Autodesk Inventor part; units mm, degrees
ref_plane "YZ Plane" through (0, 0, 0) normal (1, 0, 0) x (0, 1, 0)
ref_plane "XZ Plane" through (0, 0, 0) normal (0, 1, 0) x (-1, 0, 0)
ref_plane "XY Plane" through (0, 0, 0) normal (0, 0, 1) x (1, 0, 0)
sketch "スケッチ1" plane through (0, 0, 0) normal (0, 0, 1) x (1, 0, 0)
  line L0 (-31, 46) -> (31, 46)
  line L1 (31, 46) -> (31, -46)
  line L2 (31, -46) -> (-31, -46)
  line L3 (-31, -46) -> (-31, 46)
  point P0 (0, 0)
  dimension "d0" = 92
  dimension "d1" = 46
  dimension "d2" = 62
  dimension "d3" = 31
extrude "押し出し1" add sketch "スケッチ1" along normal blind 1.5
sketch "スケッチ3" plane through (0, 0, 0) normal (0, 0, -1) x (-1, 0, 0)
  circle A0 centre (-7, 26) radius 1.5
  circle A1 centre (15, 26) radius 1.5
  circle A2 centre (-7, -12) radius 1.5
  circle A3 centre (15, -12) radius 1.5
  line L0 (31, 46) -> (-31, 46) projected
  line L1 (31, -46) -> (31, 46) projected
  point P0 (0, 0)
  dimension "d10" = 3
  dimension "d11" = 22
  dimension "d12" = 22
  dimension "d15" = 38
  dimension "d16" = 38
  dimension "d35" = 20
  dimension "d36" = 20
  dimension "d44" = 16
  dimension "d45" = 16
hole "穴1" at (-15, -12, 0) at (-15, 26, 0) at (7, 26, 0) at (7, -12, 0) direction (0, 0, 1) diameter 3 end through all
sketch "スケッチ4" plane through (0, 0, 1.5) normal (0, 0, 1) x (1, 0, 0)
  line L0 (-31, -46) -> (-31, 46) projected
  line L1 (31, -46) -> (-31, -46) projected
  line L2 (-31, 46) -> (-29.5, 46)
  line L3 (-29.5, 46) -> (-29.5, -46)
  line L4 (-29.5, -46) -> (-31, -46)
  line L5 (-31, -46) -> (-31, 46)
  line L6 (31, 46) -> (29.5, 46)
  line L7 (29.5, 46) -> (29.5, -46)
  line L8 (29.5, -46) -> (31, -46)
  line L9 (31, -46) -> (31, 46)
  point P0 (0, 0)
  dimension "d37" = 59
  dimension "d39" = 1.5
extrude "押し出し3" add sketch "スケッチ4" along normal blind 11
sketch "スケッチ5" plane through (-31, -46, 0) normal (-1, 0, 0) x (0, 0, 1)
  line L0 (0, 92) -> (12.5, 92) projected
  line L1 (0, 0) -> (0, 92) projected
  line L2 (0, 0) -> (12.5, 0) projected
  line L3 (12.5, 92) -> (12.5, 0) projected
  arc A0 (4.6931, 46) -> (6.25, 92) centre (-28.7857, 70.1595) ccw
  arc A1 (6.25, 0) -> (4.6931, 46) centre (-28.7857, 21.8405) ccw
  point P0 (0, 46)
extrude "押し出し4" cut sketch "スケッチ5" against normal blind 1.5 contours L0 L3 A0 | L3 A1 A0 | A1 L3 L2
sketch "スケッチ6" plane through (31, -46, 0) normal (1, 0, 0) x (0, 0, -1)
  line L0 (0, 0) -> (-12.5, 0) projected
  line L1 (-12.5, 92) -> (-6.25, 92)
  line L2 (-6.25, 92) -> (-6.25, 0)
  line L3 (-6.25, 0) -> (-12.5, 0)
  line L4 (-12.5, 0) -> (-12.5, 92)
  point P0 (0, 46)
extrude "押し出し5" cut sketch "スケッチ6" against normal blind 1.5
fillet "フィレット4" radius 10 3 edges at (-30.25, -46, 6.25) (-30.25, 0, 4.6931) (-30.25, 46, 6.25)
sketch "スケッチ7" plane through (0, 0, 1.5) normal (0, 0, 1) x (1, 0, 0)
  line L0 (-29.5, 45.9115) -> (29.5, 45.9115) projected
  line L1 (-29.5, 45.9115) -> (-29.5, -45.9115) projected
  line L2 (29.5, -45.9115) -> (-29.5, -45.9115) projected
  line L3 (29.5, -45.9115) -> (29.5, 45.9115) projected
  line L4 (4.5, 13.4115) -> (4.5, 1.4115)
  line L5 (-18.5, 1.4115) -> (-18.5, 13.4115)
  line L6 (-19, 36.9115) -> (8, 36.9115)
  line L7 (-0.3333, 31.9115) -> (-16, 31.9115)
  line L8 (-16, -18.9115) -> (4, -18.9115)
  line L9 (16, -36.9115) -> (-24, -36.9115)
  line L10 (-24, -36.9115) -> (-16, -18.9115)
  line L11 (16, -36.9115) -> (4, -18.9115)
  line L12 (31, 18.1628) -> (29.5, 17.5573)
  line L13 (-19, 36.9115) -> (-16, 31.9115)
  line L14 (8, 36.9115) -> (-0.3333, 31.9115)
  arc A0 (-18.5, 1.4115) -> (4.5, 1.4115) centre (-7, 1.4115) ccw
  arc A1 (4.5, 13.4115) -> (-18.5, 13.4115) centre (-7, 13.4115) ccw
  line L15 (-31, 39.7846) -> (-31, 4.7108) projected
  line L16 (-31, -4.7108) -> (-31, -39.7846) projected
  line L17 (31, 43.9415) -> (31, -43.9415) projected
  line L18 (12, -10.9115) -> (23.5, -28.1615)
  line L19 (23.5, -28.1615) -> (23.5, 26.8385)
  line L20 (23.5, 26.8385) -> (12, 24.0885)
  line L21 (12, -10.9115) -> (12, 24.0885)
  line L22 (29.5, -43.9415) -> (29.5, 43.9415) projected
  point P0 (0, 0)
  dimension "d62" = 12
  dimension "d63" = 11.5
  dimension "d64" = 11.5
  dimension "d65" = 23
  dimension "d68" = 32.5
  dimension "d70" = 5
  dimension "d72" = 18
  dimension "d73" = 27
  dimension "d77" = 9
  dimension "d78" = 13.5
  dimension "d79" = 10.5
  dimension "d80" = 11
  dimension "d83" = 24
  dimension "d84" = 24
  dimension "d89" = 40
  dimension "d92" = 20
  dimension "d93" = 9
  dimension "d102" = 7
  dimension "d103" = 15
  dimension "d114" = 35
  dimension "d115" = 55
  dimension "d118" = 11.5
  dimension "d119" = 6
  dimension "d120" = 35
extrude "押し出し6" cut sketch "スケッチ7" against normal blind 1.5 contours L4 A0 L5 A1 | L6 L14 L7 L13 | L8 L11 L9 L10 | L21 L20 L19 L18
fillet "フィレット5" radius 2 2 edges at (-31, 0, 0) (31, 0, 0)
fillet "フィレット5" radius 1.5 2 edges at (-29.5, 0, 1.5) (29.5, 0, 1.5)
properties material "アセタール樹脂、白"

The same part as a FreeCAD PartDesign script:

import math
import FreeCAD as App
import Part
import Sketcher
from FreeCAD import Vector


def edges_at(feature, points):
    """Names of the edges that pass closest to the given points."""
    edges = feature.Shape.Edges
    near = lambda p: min(range(len(edges)), key=lambda i: edges[i].distToShape(Part.Vertex(*p))[0])
    return sorted({f"Edge{near(p) + 1}" for p in points})

doc = App.newDocument("Part")
body = doc.addObject("PartDesign::Body", "Body")

# Sketch on XY plane
sketch1 = body.newObject("Sketcher::SketchObject", "Sketch")
sketch1.AttachmentSupport = (doc.getObject("XY_Plane"), [""])
sketch1.MapMode = "FlatFace"
sketch1.addGeometry([
    Part.LineSegment(Vector(31, 46, 0), Vector(-31, 46, 0)),
    Part.LineSegment(Vector(-31, 46, 0), Vector(-31, -46, 0)),
    Part.LineSegment(Vector(-31, -46, 0), Vector(31, -46, 0)),
    Part.LineSegment(Vector(31, -46, 0), Vector(31, 46, 0)),
], False)
sketch1.addConstraint([
    Sketcher.Constraint("Coincident", 0, 2, 1, 1),
    Sketcher.Constraint("Coincident", 1, 2, 2, 1),
    Sketcher.Constraint("Coincident", 2, 2, 3, 1),
    Sketcher.Constraint("Coincident", 3, 2, 0, 1),
    Sketcher.Constraint("Horizontal", 0),
    Sketcher.Constraint("Vertical", 1),
    Sketcher.Constraint("Horizontal", 2),
    Sketcher.Constraint("Vertical", 3),
    Sketcher.Constraint("Symmetric", 0, 2, 2, 2, -1, 1),
    Sketcher.Constraint("DistanceX", 0, 2, 0, 1, 62.0),
    Sketcher.Constraint("DistanceY", 1, 2, 1, 1, 92.0),
])
pad1 = body.newObject("PartDesign::Pad", "Pad")
pad1.Profile = sketch1
pad1.Length = 1.5

# Sketch on XY plane
sketch2 = body.newObject("Sketcher::SketchObject", "Sketch001")
sketch2.AttachmentSupport = (doc.getObject("XY_Plane"), [""])
sketch2.MapMode = "FlatFace"
sketch2.addGeometry([
    Part.Circle(Vector(-15, -12, 0), Vector(0, 0, 1), 1.5),
    Part.Circle(Vector(-15, 26, 0), Vector(0, 0, 1), 1.5),
    Part.Circle(Vector(7, 26, 0), Vector(0, 0, 1), 1.5),
    Part.Circle(Vector(7, -12, 0), Vector(0, 0, 1), 1.5),
], False)
sketch2.addConstraint([
    Sketcher.Constraint("Equal", 0, 1),
    Sketcher.Constraint("Equal", 1, 2),
    Sketcher.Constraint("Equal", 2, 3),
    Sketcher.Constraint("Horizontal", 1, 3, 2, 3),
    Sketcher.Constraint("Horizontal", 0, 3, 3, 3),
    Sketcher.Constraint("Vertical", 0, 3, 1, 3),
    Sketcher.Constraint("Vertical", 2, 3, 3, 3),
    Sketcher.Constraint("Diameter", 0, 3.0),
    Sketcher.Constraint("DistanceX", 0, 3, -1, 1, 15.0),
    Sketcher.Constraint("DistanceY", 0, 3, -1, 1, 12.0),
    Sketcher.Constraint("DistanceY", -1, 1, 1, 3, 26.0),
    Sketcher.Constraint("DistanceX", -1, 1, 2, 3, 7.0),
])
doc.recompute()
hole = body.newObject("PartDesign::Hole", "Hole")
hole.Profile = sketch2
hole.ThreadType = "None"
hole.Diameter = 3
hole.DepthType = "ThroughAll"
hole.Reversed = True

# Sketch on XY plane
sketch3 = body.newObject("Sketcher::SketchObject", "Sketch002")
sketch3.AttachmentSupport = (doc.getObject("XY_Plane"), [""])
sketch3.MapMode = "FlatFace"
sketch3.AttachmentOffset = App.Placement(Vector(0, 0, 1.5), App.Rotation())
sketch3.addGeometry([
    Part.LineSegment(Vector(29.5, 46, 0), Vector(29.5, -46, 0)),  # 0
    Part.LineSegment(Vector(29.5, -46, 0), Vector(31, -46, 0)),  # 1
    Part.LineSegment(Vector(31, -46, 0), Vector(31, 46, 0)),  # 2
    Part.LineSegment(Vector(31, 46, 0), Vector(29.5, 46, 0)),  # 3
    Part.LineSegment(Vector(-31, 46, 0), Vector(-31, -46, 0)),  # 4
    Part.LineSegment(Vector(-31, -46, 0), Vector(-29.5, -46, 0)),  # 5
    Part.LineSegment(Vector(-29.5, -46, 0), Vector(-29.5, 46, 0)),  # 6
    Part.LineSegment(Vector(-29.5, 46, 0), Vector(-31, 46, 0)),  # 7
], False)
sketch3.addConstraint([
    Sketcher.Constraint("Coincident", 0, 2, 1, 1),
    Sketcher.Constraint("Coincident", 1, 2, 2, 1),
    Sketcher.Constraint("Coincident", 2, 2, 3, 1),
    Sketcher.Constraint("Coincident", 3, 2, 0, 1),
    Sketcher.Constraint("Coincident", 4, 2, 5, 1),
    Sketcher.Constraint("Coincident", 5, 2, 6, 1),
    Sketcher.Constraint("Coincident", 6, 2, 7, 1),
    Sketcher.Constraint("Coincident", 7, 2, 4, 1),
    Sketcher.Constraint("Vertical", 0),
    Sketcher.Constraint("Horizontal", 1),
    Sketcher.Constraint("Vertical", 2),
    Sketcher.Constraint("Horizontal", 3),
    Sketcher.Constraint("Vertical", 4),
    Sketcher.Constraint("Horizontal", 5),
    Sketcher.Constraint("Vertical", 6),
    Sketcher.Constraint("Horizontal", 7),
    Sketcher.Constraint("Symmetric", 2, 2, 4, 2, -1, 1),
    Sketcher.Constraint("Symmetric", 0, 2, 6, 2, -1, 1),
    Sketcher.Constraint("Horizontal", 1, 2, 4, 2),
    Sketcher.Constraint("DistanceX", 1, 1, 1, 2, 1.5),
    Sketcher.Constraint("DistanceX", 5, 2, 0, 2, 59.0),
    Sketcher.Constraint("DistanceY", 0, 2, 0, 1, 92.0),
])
pad2 = body.newObject("PartDesign::Pad", "Pad001")
pad2.Profile = sketch3
pad2.Length = 11

# Sketch on YZ plane
sketch4 = body.newObject("Sketcher::SketchObject", "Sketch003")
sketch4.AttachmentSupport = (doc.getObject("YZ_Plane"), [""])
sketch4.MapMode = "FlatFace"
sketch4.AttachmentOffset = App.Placement(Vector(0, 0, -31), App.Rotation())
sketch4.addGeometry([
    Part.LineSegment(Vector(46, 12, 0), Vector(46, 6, 0)),  # 0
    Part.ArcOfCircle(Part.Circle(Vector(24, -29, 0), Vector(0, 0, 1), 41), math.radians(58), math.radians(90)),  # 1
    Part.LineSegment(Vector(24, 12, 0), Vector(46, 12, 0)),  # 2
    Part.LineSegment(Vector(-24, 12, 0), Vector(24, 12, 0)),  # 3
    Part.ArcOfCircle(Part.Circle(Vector(24, -29, 0), Vector(0, 0, 1), 41), math.radians(90), math.radians(126)),  # 4
    Part.ArcOfCircle(Part.Circle(Vector(-24, -29, 0), Vector(0, 0, 1), 41), math.radians(54), math.radians(90)),  # 5
    Part.ArcOfCircle(Part.Circle(Vector(-24, -29, 0), Vector(0, 0, 1), 41), math.radians(90), math.radians(122)),  # 6
    Part.LineSegment(Vector(-46, 6, 0), Vector(-46, 12, 0)),  # 7
    Part.LineSegment(Vector(-46, 12, 0), Vector(-24, 12, 0)),  # 8
], False)
sketch4.addConstraint([
    Sketcher.Constraint("Coincident", 0, 2, 1, 1),
    Sketcher.Constraint("Tangent", 1, 2, 2, 1),
    Sketcher.Constraint("Coincident", 2, 2, 0, 1),
    Sketcher.Constraint("Tangent", 3, 2, 4, 1),
    Sketcher.Constraint("Coincident", 4, 2, 5, 1),
    Sketcher.Constraint("Tangent", 5, 2, 3, 1),
    Sketcher.Constraint("Coincident", 6, 2, 7, 1),
    Sketcher.Constraint("Coincident", 7, 2, 8, 1),
    Sketcher.Constraint("Tangent", 8, 2, 6, 1),
    Sketcher.Constraint("Vertical", 0),
    Sketcher.Constraint("Horizontal", 2),
    Sketcher.Constraint("Horizontal", 3),
    Sketcher.Constraint("Vertical", 7),
    Sketcher.Constraint("Horizontal", 8),
    Sketcher.Constraint("Coincident", 4, 3, 1, 3),
    Sketcher.Constraint("Coincident", 6, 3, 5, 3),
    Sketcher.Constraint("Equal", 1, 4),
    Sketcher.Constraint("Equal", 4, 5),
    Sketcher.Constraint("Equal", 5, 6),
    Sketcher.Constraint("Symmetric", 0, 2, 6, 2, -2),
    Sketcher.Constraint("DistanceX", -1, 1, 0, 2, 46.0),
    Sketcher.Constraint("DistanceY", 0, 2, 0, 1, 6.25),
    Sketcher.Constraint("DistanceY", -1, 1, 1, 2, 12.5),
    Sketcher.Constraint("Radius", 1, 41.2857),
])
pocket1 = body.newObject("PartDesign::Pocket", "Pocket")
pocket1.Profile = sketch4
pocket1.Length = 1.5
pocket1.Reversed = True

# Sketch on YZ plane
sketch5 = body.newObject("Sketcher::SketchObject", "Sketch004")
sketch5.AttachmentSupport = (doc.getObject("YZ_Plane"), [""])
sketch5.MapMode = "FlatFace"
sketch5.AttachmentOffset = App.Placement(Vector(0, 0, 31), App.Rotation())
sketch5.addGeometry([
    Part.LineSegment(Vector(-46, 12, 0), Vector(-46, 6, 0)),
    Part.LineSegment(Vector(-46, 6, 0), Vector(46, 6, 0)),
    Part.LineSegment(Vector(46, 6, 0), Vector(46, 12, 0)),
    Part.LineSegment(Vector(46, 12, 0), Vector(-46, 12, 0)),
], False)
sketch5.addConstraint([
    Sketcher.Constraint("Coincident", 0, 2, 1, 1),
    Sketcher.Constraint("Coincident", 1, 2, 2, 1),
    Sketcher.Constraint("Coincident", 2, 2, 3, 1),
    Sketcher.Constraint("Coincident", 3, 2, 0, 1),
    Sketcher.Constraint("Vertical", 0),
    Sketcher.Constraint("Horizontal", 1),
    Sketcher.Constraint("Vertical", 2),
    Sketcher.Constraint("Horizontal", 3),
    Sketcher.Constraint("DistanceX", 1, 1, 1, 2, 92.0),
    Sketcher.Constraint("DistanceX", 0, 2, -1, 1, 46.0),
    Sketcher.Constraint("DistanceY", 0, 2, 0, 1, 6.25),
    Sketcher.Constraint("DistanceY", -1, 1, 2, 2, 12.5),
])
pocket2 = body.newObject("PartDesign::Pocket", "Pocket001")
pocket2.Profile = sketch5
pocket2.Length = 1.5
doc.recompute()

fillet = body.newObject("PartDesign::Fillet", "Fillet")
fillet.Base = (pocket2, edges_at(pocket2, [(-30.25, -46, 6.25), (-30.25, 0, 4.693), (-30.25, 46, 6.25)]))
fillet.Radius = 10

# Sketch on XY plane
sketch6 = body.newObject("Sketcher::SketchObject", "Sketch005")
sketch6.AttachmentSupport = (doc.getObject("XY_Plane"), [""])
sketch6.MapMode = "FlatFace"
sketch6.AttachmentOffset = App.Placement(Vector(0, 0, 1.5), App.Rotation())
sketch6.addGeometry([
    Part.LineSegment(Vector(4, 1, 0), Vector(4, 13, 0)),  # 0
    Part.ArcOfCircle(Part.Circle(Vector(-7, 13, 0), Vector(0, 0, 1), 12), math.radians(0), math.radians(180)),  # 1
    Part.LineSegment(Vector(-18, 13, 0), Vector(-18, 1, 0)),  # 2
    Part.ArcOfCircle(Part.Circle(Vector(-7, 1, 0), Vector(0, 0, 1), 12), math.radians(180), math.radians(360)),  # 3
    Part.LineSegment(Vector(8, 37, 0), Vector(-19, 37, 0)),  # 4
    Part.LineSegment(Vector(-19, 37, 0), Vector(-16, 32, 0)),  # 5
    Part.LineSegment(Vector(-16, 32, 0), Vector(0, 32, 0)),  # 6
    Part.LineSegment(Vector(0, 32, 0), Vector(8, 37, 0)),  # 7
    Part.LineSegment(Vector(4, -19, 0), Vector(-16, -19, 0)),  # 8
    Part.LineSegment(Vector(-16, -19, 0), Vector(-24, -37, 0)),  # 9
    Part.LineSegment(Vector(-24, -37, 0), Vector(16, -37, 0)),  # 10
    Part.LineSegment(Vector(16, -37, 0), Vector(4, -19, 0)),  # 11
    Part.LineSegment(Vector(12, 24, 0), Vector(12, -11, 0)),  # 12
    Part.LineSegment(Vector(12, -11, 0), Vector(24, -28, 0)),  # 13
    Part.LineSegment(Vector(24, -28, 0), Vector(24, 27, 0)),  # 14
    Part.LineSegment(Vector(24, 27, 0), Vector(12, 24, 0)),  # 15
], False)
sketch6.addConstraint([
    Sketcher.Constraint("Tangent", 0, 2, 1, 1),
    Sketcher.Constraint("Tangent", 1, 2, 2, 1),
    Sketcher.Constraint("Tangent", 2, 2, 3, 1),
    Sketcher.Constraint("Tangent", 3, 2, 0, 1),
    Sketcher.Constraint("Coincident", 4, 2, 5, 1),
    Sketcher.Constraint("Coincident", 5, 2, 6, 1),
    Sketcher.Constraint("Coincident", 6, 2, 7, 1),
    Sketcher.Constraint("Coincident", 7, 2, 4, 1),
    Sketcher.Constraint("Coincident", 8, 2, 9, 1),
    Sketcher.Constraint("Coincident", 9, 2, 10, 1),
    Sketcher.Constraint("Coincident", 10, 2, 11, 1),
    Sketcher.Constraint("Coincident", 11, 2, 8, 1),
    Sketcher.Constraint("Coincident", 12, 2, 13, 1),
    Sketcher.Constraint("Coincident", 13, 2, 14, 1),
    Sketcher.Constraint("Coincident", 14, 2, 15, 1),
    Sketcher.Constraint("Coincident", 15, 2, 12, 1),
    Sketcher.Constraint("Vertical", 0),
    Sketcher.Constraint("Vertical", 2),
    Sketcher.Constraint("Horizontal", 4),
    Sketcher.Constraint("Horizontal", 6),
    Sketcher.Constraint("Horizontal", 8),
    Sketcher.Constraint("Horizontal", 10),
    Sketcher.Constraint("Vertical", 12),
    Sketcher.Constraint("Vertical", 14),
    Sketcher.Constraint("Perpendicular", 5, 7),
    Sketcher.Constraint("Parallel", 11, 13),
    Sketcher.Constraint("Vertical", 5, 2, 8, 2),
    Sketcher.Constraint("Radius", 1, 11.5),
    Sketcher.Constraint("DistanceX", 4, 2, 4, 1, 27.0),
    Sketcher.Constraint("DistanceX", 8, 2, 8, 1, 20.0),
    Sketcher.Constraint("DistanceX", 10, 1, 10, 2, 40.0),
    Sketcher.Constraint("DistanceY", 0, 1, 0, 2, 12.0),
    Sketcher.Constraint("DistanceY", 12, 2, 12, 1, 35.0),
    Sketcher.Constraint("DistanceY", 14, 1, 14, 2, 55.0),
    Sketcher.Constraint("DistanceX", 1, 3, -1, 1, 7.0),
    Sketcher.Constraint("DistanceX", 9, 2, -1, 1, 24.0),
    Sketcher.Constraint("DistanceX", -1, 1, 12, 2, 12.0),
    Sketcher.Constraint("DistanceX", 4, 2, 1, 3, 12.0),
    Sketcher.Constraint("DistanceY", 5, 2, 4, 2, 5.0),
    Sketcher.Constraint("DistanceX", 5, 2, 1, 3, 9.0),
    Sketcher.Constraint("DistanceY", 9, 2, 8, 2, 18.0),
    Sketcher.Constraint("DistanceX", 12, 2, 13, 2, 11.5),
    Sketcher.Constraint("DistanceY", 11, 2, 12, 2, 8.0),
    Sketcher.Constraint("DistanceY", 1, 2, 4, 2, 23.5),
    Sketcher.Constraint("DistanceY", 8, 2, 2, 2, 20.323),
    Sketcher.Constraint("DistanceY", -1, 1, 1, 3, 13.4115),
])
pocket3 = body.newObject("PartDesign::Pocket", "Pocket002")
pocket3.Profile = sketch6
pocket3.Length = 1.5
doc.recompute()

fillet2 = body.newObject("PartDesign::Fillet", "Fillet001")
fillet2.Base = (pocket3, edges_at(pocket3, [(-31, 0, 0), (31, 0, 0)]))
fillet2.Radius = 2
doc.recompute()

fillet3 = body.newObject("PartDesign::Fillet", "Fillet002")
fillet3.Base = (fillet2, edges_at(fillet2, [(-29.5, 0, 1.5), (29.5, 0, 1.5)]))
fillet3.Radius = 1.5

doc.recompute()
